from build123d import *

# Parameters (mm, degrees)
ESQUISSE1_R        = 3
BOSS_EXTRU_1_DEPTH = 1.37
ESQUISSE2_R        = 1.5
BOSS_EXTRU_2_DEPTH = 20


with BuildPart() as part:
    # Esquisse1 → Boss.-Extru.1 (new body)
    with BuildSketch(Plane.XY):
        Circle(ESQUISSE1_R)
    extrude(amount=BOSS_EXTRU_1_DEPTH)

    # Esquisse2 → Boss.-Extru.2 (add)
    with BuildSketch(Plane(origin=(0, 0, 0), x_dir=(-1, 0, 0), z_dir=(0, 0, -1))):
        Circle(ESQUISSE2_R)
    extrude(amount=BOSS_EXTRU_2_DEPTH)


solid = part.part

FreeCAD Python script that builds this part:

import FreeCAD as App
import Part
import Sketcher
from FreeCAD import Vector

doc = App.newDocument("Part")
body = doc.addObject("PartDesign::Body", "Body")

# Sketch on XY plane
sketch1 = doc.addObject("Sketcher::SketchObject", "Sketch")
body.addObject(sketch1)
sketch1.AttachmentSupport = (doc.XY_Plane, [""])
sketch1.MapMode = "FlatFace"
sketch1.addGeometry(Part.Circle(Vector(0, 0, 0), Vector(0, 0, 1), 3), False)
sketch1.addConstraint(Sketcher.Constraint("Coincident", 0, 3, -1, 1))
sketch1.addConstraint(Sketcher.Constraint("Diameter", 0, 6.0))
pad1 = doc.addObject("PartDesign::Pad", "Pad")
body.addObject(pad1)
pad1.Profile = sketch1
pad1.Length = 1.37

# Sketch on XY plane
sketch2 = doc.addObject("Sketcher::SketchObject", "Sketch001")
body.addObject(sketch2)
sketch2.AttachmentSupport = (doc.XY_Plane, [""])
sketch2.MapMode = "FlatFace"
sketch2.addGeometry(Part.Circle(Vector(0, 0, 0), Vector(0, 0, 1), 1.5), False)
sketch2.addConstraint(Sketcher.Constraint("Coincident", 0, 3, -1, 1))
sketch2.addConstraint(Sketcher.Constraint("Diameter", 0, 3.0))
pad2 = doc.addObject("PartDesign::Pad", "Pad001")
body.addObject(pad2)
pad2.Profile = sketch2
pad2.Length = 20
pad2.Reversed = True

doc.recompute()
